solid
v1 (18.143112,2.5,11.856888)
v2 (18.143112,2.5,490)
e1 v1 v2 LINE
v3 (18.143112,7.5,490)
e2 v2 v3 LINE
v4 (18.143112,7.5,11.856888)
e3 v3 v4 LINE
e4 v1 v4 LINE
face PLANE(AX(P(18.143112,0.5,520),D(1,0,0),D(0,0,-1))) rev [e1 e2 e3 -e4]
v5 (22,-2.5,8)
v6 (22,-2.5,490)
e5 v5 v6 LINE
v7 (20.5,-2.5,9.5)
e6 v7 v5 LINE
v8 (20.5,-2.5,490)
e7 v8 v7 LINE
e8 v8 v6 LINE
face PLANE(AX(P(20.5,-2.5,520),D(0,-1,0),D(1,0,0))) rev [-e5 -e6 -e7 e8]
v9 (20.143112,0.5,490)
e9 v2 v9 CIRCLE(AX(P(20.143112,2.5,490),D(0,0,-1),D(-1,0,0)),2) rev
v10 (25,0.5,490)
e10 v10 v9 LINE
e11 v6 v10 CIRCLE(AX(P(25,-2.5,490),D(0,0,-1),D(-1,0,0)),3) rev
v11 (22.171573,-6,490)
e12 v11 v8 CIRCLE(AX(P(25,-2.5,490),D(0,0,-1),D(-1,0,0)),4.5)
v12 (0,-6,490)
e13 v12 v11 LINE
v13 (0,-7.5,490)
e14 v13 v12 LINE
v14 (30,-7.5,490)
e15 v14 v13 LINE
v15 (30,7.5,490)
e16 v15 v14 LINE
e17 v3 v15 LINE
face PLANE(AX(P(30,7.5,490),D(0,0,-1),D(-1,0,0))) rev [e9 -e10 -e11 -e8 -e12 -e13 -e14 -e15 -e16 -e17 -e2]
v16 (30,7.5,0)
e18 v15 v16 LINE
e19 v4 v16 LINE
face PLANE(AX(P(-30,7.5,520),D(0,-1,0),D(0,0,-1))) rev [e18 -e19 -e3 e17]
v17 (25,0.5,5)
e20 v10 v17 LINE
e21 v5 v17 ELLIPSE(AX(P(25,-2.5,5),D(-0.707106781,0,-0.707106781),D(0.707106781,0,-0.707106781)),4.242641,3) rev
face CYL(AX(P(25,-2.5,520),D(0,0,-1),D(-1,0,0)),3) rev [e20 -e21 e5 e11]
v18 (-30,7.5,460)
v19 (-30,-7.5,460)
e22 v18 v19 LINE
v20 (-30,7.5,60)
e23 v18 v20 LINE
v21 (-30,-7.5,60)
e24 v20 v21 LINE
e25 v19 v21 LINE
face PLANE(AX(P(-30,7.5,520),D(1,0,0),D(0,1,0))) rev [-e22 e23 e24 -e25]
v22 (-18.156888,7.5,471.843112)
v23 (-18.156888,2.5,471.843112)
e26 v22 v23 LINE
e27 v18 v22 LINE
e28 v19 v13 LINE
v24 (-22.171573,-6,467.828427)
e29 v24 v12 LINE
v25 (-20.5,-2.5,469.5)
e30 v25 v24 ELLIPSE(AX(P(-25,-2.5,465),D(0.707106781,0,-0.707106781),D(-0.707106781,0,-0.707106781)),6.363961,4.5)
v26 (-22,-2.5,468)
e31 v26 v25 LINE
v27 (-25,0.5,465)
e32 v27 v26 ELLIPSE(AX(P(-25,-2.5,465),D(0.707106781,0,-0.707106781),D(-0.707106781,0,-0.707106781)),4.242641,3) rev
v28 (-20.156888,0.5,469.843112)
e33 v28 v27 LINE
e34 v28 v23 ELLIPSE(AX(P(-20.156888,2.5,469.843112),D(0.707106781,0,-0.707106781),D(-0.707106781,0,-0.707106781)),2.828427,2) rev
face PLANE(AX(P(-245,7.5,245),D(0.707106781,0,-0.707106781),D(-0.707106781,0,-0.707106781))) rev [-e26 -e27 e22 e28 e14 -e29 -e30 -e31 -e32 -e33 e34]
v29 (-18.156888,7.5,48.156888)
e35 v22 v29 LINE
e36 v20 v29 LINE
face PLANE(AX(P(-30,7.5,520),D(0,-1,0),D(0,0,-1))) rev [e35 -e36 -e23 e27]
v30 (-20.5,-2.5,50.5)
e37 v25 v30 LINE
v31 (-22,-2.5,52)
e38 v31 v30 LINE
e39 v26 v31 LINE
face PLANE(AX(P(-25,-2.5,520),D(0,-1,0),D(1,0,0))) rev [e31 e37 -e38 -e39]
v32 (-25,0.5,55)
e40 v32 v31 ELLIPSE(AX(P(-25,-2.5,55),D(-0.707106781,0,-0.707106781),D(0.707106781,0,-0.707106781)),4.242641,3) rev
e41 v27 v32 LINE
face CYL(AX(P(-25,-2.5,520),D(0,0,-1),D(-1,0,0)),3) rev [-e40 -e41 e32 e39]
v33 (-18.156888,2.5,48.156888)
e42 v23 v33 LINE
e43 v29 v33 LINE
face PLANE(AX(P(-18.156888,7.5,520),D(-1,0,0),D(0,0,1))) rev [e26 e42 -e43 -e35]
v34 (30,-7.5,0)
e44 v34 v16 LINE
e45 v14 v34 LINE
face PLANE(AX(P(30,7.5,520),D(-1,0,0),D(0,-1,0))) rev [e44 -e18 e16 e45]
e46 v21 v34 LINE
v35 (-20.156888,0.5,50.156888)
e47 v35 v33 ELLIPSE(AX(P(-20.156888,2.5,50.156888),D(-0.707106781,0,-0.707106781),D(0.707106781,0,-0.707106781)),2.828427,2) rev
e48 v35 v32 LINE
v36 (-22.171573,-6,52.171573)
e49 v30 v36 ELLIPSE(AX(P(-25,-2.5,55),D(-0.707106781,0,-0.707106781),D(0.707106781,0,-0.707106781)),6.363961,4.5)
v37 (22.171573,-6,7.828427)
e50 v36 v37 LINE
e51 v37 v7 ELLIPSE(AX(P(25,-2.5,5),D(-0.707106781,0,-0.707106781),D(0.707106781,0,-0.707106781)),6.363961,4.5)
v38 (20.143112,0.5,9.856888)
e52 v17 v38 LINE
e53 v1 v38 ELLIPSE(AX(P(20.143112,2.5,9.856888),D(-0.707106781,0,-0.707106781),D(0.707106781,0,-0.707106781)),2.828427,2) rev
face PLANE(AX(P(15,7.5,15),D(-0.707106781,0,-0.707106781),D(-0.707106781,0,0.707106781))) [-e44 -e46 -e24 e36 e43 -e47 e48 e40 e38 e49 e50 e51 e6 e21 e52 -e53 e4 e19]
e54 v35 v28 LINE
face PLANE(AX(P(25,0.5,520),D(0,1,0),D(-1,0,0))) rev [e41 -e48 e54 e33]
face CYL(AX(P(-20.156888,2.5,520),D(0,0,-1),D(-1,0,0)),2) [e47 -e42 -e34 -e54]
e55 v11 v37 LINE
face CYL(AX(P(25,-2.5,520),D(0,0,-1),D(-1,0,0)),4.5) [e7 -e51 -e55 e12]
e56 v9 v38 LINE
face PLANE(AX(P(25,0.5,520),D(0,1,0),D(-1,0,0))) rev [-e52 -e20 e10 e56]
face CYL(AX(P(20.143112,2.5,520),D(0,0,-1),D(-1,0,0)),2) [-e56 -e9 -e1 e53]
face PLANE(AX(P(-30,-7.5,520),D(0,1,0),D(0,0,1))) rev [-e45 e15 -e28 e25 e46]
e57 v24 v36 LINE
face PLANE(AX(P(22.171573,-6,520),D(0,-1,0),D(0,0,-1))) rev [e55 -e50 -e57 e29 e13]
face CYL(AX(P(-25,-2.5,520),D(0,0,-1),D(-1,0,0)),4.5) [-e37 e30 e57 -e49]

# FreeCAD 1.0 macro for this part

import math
import FreeCAD as App
import Part
import Sketcher
Q = App.Units.Quantity


def edges_at(feature, points):
    """Names of the edges that pass closest to the given points."""
    edges = feature.Shape.Edges
    near = lambda p: min(range(len(edges)), key=lambda i: edges[i].distToShape(Part.Vertex(*p))[0])
    return sorted({f"Edge{near(p) + 1}" for p in points})

doc = App.newDocument("Part")
body = doc.addObject("PartDesign::Body", "Body")

sketch1 = doc.addObject("Sketcher::SketchObject", "Sketch")
body.addObject(sketch1)
sketch1.AttachmentSupport = (doc.XY_Plane, [""])
sketch1.MapMode = "FlatFace"
sketch1.addGeometry([
    Part.LineSegment(App.Vector(-30, 8, 0), App.Vector(-30, -8, 0)),
    Part.LineSegment(App.Vector(-30, -8, 0), App.Vector(30, -8, 0)),
    Part.LineSegment(App.Vector(30, -8, 0), App.Vector(30, 8, 0)),
    Part.LineSegment(App.Vector(30, 8, 0), App.Vector(-30, 8, 0)),
], False)
sketch1.addConstraint([
    Sketcher.Constraint("Coincident", 0, 2, 1, 1),
    Sketcher.Constraint("Coincident", 1, 2, 2, 1),
    Sketcher.Constraint("Coincident", 2, 2, 3, 1),
    Sketcher.Constraint("Coincident", 3, 2, 0, 1),
    Sketcher.Constraint("Vertical", 0),
    Sketcher.Constraint("Horizontal", 1),
    Sketcher.Constraint("Vertical", 2),
    Sketcher.Constraint("Horizontal", 3),
    Sketcher.Constraint("Symmetric", 0, 2, 2, 2, -1, 1),
    Sketcher.Constraint("DistanceX", 1, 1, 1, 2, Q("60 mm")),
    Sketcher.Constraint("DistanceY", 0, 2, 0, 1, Q("15 mm")),
])
pad1 = doc.addObject("PartDesign::Pad", "Pad")
body.addObject(pad1)
pad1.Profile = sketch1
pad1.Length = 520

sketch2 = doc.addObject("Sketcher::SketchObject", "Sketch001")
body.addObject(sketch2)
sketch2.AttachmentSupport = (doc.XY_Plane, [""])
sketch2.MapMode = "FlatFace"
sketch2.addGeometry([
    Part.Circle(App.Vector(25, -2.5, 0), App.Vector(0, 0, 1), 3),
    Part.Circle(App.Vector(-25, -2.5, 0), App.Vector(0, 0, 1), 3),
], False)
sketch2.addConstraint([
    Sketcher.Constraint("Equal", 0, 1),
    Sketcher.Constraint("Symmetric", 0, 3, 1, 3, -2),
    Sketcher.Constraint("Diameter", 0, Q("6 mm")),
    Sketcher.Constraint("DistanceX", -1, 1, 0, 3, Q("25 mm")),
    Sketcher.Constraint("DistanceY", 0, 3, -1, 1, Q("2.5 mm")),
])
pocket1 = doc.addObject("PartDesign::Pocket", "Pocket")
body.addObject(pocket1)
pocket1.Profile = sketch2
pocket1.Type = "ThroughAll"
pocket1.Reversed = True

sketch3 = doc.addObject("Sketcher::SketchObject", "Sketch002")
body.addObject(sketch3)
sketch3.AttachmentSupport = (doc.XY_Plane, [""])
sketch3.MapMode = "FlatFace"
sketch3.addGeometry([
    Part.LineSegment(App.Vector(22.2, -6, 0), App.Vector(-22.2, -6, 0)),
    Part.ArcOfCircle(Part.Circle(App.Vector(-25, -2.5, 0), App.Vector(0, 0, 1), 4.5), math.radians(-51), math.radians(0)),
    Part.LineSegment(App.Vector(-20.5, -2.5, 0), App.Vector(-25, -2.5, 0)),
    Part.LineSegment(App.Vector(-25, -2.5, 0), App.Vector(-25, 0.5, 0)),
    Part.LineSegment(App.Vector(-25, 0.5, 0), App.Vector(25, 0.5, 0)),
    Part.LineSegment(App.Vector(25, 0.5, 0), App.Vector(25, -2.5, 0)),
    Part.LineSegment(App.Vector(25, -2.5, 0), App.Vector(20.5, -2.5, 0)),
    Part.ArcOfCircle(Part.Circle(App.Vector(25, -2.5, 0), App.Vector(0, 0, 1), 4.5), math.radians(180), math.radians(231)),
], False)
sketch3.addConstraint([
    Sketcher.Constraint("Coincident", 0, 2, 1, 1),
    Sketcher.Constraint("Coincident", 1, 2, 2, 1),
    Sketcher.Constraint("Coincident", 2, 2, 3, 1),
    Sketcher.Constraint("Coincident", 3, 2, 4, 1),
    Sketcher.Constraint("Coincident", 4, 2, 5, 1),
    Sketcher.Constraint("Coincident", 5, 2, 6, 1),
    Sketcher.Constraint("Coincident", 6, 2, 7, 1),
    Sketcher.Constraint("Coincident", 7, 2, 0, 1),
    Sketcher.Constraint("Horizontal", 0),
    Sketcher.Constraint("Horizontal", 2),
    Sketcher.Constraint("Vertical", 3),
    Sketcher.Constraint("Horizontal", 4),
    Sketcher.Constraint("Vertical", 5),
    Sketcher.Constraint("Horizontal", 6),
    Sketcher.Constraint("Coincident", 2, 2, 1, 3),
    Sketcher.Constraint("Coincident", 5, 2, 7, 3),
    Sketcher.Constraint("Equal", 1, 7),
    Sketcher.Constraint("Symmetric", 1, 3, 7, 3, -2),
    Sketcher.Constraint("Radius", 1, Q("4.5 mm")),
    Sketcher.Constraint("DistanceX", 4, 1, 4, 2, Q("50 mm")),
    Sketcher.Constraint("DistanceY", 3, 1, 3, 2, Q("3 mm")),
    Sketcher.Constraint("DistanceY", 0, 2, -1, 1, Q("6 mm")),
    Sketcher.Constraint("DistanceY", 1, 3, -1, 1, Q("2.5 mm")),
])
pocket2 = doc.addObject("PartDesign::Pocket", "Pocket001")
body.addObject(pocket2)
pocket2.Profile = sketch3
pocket2.Type = "ThroughAll"
pocket2.Reversed = True

sketch4 = doc.addObject("Sketcher::SketchObject", "Sketch003")
body.addObject(sketch4)
sketch4.AttachmentSupport = (doc.XY_Plane, [""])
sketch4.MapMode = "FlatFace"
sketch4.addGeometry([
    Part.LineSegment(App.Vector(18, 8, 0), App.Vector(18, 0, 0)),
    Part.LineSegment(App.Vector(18, 0, 0), App.Vector(-18, 0, 0)),
    Part.LineSegment(App.Vector(-18, 0, 0), App.Vector(-18, 8, 0)),
    Part.LineSegment(App.Vector(-18, 8, 0), App.Vector(18, 8, 0)),
], False)
sketch4.addConstraint([
    Sketcher.Constraint("Coincident", 0, 2, 1, 1),
    Sketcher.Constraint("Coincident", 1, 2, 2, 1),
    Sketcher.Constraint("Coincident", 2, 2, 3, 1),
    Sketcher.Constraint("Coincident", 3, 2, 0, 1),
    Sketcher.Constraint("Vertical", 0),
    Sketcher.Constraint("Horizontal", 1),
    Sketcher.Constraint("Vertical", 2),
    Sketcher.Constraint("Horizontal", 3),
    Sketcher.Constraint("DistanceY", 0, 2, 0, 1, Q("7 mm")),
    Sketcher.Constraint("DistanceX", 1, 2, 1, 1, Q("36.3 mm")),
    Sketcher.Constraint("DistanceY", -1, 1, 0, 2, Q("0.5 mm")),
    Sketcher.Constraint("DistanceX", -1, 1, 0, 2, Q("18.143112 mm")),
])
pocket3 = doc.addObject("PartDesign::Pocket", "Pocket002")
body.addObject(pocket3)
pocket3.Profile = sketch4
pocket3.Type = "ThroughAll"
pocket3.Reversed = True
doc.recompute()

fillet = doc.addObject("PartDesign::Fillet", "Fillet")
body.addObject(fillet)
fillet.Base = (pocket3, edges_at(pocket3, [(-18.157, 0.5, 260), (18.143, 0.5, 260)]))
fillet.Radius = 2

sketch5 = doc.addObject("Sketcher::SketchObject", "Sketch004")
body.addObject(sketch5)
sketch5.AttachmentSupport = (doc.XZ_Plane, [""])
sketch5.MapMode = "FlatFace"
sketch5.AttachmentOffset = App.Placement(App.Vector(0, 0, 7.5), App.Rotation())
sketch5.addGeometry([
    Part.LineSegment(App.Vector(-30, 520, 0), App.Vector(-30, 460, 0)),
    Part.LineSegment(App.Vector(-30, 460, 0), App.Vector(30, 520, 0)),
    Part.LineSegment(App.Vector(30, 520, 0), App.Vector(-30, 520, 0)),
    Part.LineSegment(App.Vector(-30, 0, 0), App.Vector(30, 0, 0)),
    Part.LineSegment(App.Vector(30, 0, 0), App.Vector(-30, 60, 0)),
    Part.LineSegment(App.Vector(-30, 60, 0), App.Vector(-30, 0, 0)),
], False)
sketch5.addConstraint([
    Sketcher.Constraint("Coincident", 0, 2, 1, 1),
    Sketcher.Constraint("Coincident", 1, 2, 2, 1),
    Sketcher.Constraint("Coincident", 2, 2, 0, 1),
    Sketcher.Constraint("Coincident", 3, 2, 4, 1),
    Sketcher.Constraint("Coincident", 4, 2, 5, 1),
    Sketcher.Constraint("Coincident", 5, 2, 3, 1),
    Sketcher.Constraint("Vertical", 0),
    Sketcher.Constraint("Horizontal", 2),
    Sketcher.Constraint("Horizontal", 3),
    Sketcher.Constraint("Vertical", 5),
    Sketcher.Constraint("Symmetric", 3, 2, 5, 2, -1, 1),
    Sketcher.Constraint("Perpendicular", 1, 4),
    Sketcher.Constraint("Vertical", 1, 2, 3, 2),
    Sketcher.Constraint("Vertical", 2, 2, 4, 2),
    Sketcher.Constraint("Equal", 3, 0),
    Sketcher.Constraint("DistanceX", 2, 2, 2, 1, Q("60 mm")),
    Sketcher.Constraint("DistanceY", -1, 1, 0, 2, Q("460 mm")),
])
pocket4 = doc.addObject("PartDesign::Pocket", "Pocket003")
body.addObject(pocket4)
pocket4.Profile = sketch5
pocket4.Type = "ThroughAll"

sketch6 = doc.addObject("Sketcher::SketchObject", "Sketch005")
body.addObject(sketch6)
sketch6.AttachmentSupport = (doc.XZ_Plane, [""])
sketch6.MapMode = "FlatFace"
sketch6.AttachmentOffset = App.Placement(App.Vector(0, 0, 7.5), App.Rotation())
sketch6.addGeometry([
    Part.LineSegment(App.Vector(0, 520, 0), App.Vector(0, 490, 0)),
    Part.LineSegment(App.Vector(0, 490, 0), App.Vector(30, 490, 0)),
    Part.LineSegment(App.Vector(30, 490, 0), App.Vector(30, 520, 0)),
    Part.LineSegment(App.Vector(30, 520, 0), App.Vector(0, 520, 0)),
], False)
sketch6.addConstraint([
    Sketcher.Constraint("Coincident", 0, 2, 1, 1),
    Sketcher.Constraint("Coincident", 1, 2, 2, 1),
    Sketcher.Constraint("Coincident", 2, 2, 3, 1),
    Sketcher.Constraint("Coincident", 3, 2, 0, 1),
    Sketcher.Constraint("Vertical", 0),
    Sketcher.Constraint("Horizontal", 1),
    Sketcher.Constraint("Vertical", 2),
    Sketcher.Constraint("Horizontal", 3),
    Sketcher.Constraint("PointOnObject", 0, 2, -2),
    Sketcher.Constraint("Equal", 3, 0),
    Sketcher.Constraint("DistanceX", 1, 1, 1, 2, Q("30 mm")),
    Sketcher.Constraint("DistanceY", -1, 1, 0, 2, Q("490 mm")),
])
pocket5 = doc.addObject("PartDesign::Pocket", "Pocket004")
body.addObject(pocket5)
pocket5.Profile = sketch6
pocket5.Type = "ThroughAll"
pocket5.Midplane = True

doc.recompute()
